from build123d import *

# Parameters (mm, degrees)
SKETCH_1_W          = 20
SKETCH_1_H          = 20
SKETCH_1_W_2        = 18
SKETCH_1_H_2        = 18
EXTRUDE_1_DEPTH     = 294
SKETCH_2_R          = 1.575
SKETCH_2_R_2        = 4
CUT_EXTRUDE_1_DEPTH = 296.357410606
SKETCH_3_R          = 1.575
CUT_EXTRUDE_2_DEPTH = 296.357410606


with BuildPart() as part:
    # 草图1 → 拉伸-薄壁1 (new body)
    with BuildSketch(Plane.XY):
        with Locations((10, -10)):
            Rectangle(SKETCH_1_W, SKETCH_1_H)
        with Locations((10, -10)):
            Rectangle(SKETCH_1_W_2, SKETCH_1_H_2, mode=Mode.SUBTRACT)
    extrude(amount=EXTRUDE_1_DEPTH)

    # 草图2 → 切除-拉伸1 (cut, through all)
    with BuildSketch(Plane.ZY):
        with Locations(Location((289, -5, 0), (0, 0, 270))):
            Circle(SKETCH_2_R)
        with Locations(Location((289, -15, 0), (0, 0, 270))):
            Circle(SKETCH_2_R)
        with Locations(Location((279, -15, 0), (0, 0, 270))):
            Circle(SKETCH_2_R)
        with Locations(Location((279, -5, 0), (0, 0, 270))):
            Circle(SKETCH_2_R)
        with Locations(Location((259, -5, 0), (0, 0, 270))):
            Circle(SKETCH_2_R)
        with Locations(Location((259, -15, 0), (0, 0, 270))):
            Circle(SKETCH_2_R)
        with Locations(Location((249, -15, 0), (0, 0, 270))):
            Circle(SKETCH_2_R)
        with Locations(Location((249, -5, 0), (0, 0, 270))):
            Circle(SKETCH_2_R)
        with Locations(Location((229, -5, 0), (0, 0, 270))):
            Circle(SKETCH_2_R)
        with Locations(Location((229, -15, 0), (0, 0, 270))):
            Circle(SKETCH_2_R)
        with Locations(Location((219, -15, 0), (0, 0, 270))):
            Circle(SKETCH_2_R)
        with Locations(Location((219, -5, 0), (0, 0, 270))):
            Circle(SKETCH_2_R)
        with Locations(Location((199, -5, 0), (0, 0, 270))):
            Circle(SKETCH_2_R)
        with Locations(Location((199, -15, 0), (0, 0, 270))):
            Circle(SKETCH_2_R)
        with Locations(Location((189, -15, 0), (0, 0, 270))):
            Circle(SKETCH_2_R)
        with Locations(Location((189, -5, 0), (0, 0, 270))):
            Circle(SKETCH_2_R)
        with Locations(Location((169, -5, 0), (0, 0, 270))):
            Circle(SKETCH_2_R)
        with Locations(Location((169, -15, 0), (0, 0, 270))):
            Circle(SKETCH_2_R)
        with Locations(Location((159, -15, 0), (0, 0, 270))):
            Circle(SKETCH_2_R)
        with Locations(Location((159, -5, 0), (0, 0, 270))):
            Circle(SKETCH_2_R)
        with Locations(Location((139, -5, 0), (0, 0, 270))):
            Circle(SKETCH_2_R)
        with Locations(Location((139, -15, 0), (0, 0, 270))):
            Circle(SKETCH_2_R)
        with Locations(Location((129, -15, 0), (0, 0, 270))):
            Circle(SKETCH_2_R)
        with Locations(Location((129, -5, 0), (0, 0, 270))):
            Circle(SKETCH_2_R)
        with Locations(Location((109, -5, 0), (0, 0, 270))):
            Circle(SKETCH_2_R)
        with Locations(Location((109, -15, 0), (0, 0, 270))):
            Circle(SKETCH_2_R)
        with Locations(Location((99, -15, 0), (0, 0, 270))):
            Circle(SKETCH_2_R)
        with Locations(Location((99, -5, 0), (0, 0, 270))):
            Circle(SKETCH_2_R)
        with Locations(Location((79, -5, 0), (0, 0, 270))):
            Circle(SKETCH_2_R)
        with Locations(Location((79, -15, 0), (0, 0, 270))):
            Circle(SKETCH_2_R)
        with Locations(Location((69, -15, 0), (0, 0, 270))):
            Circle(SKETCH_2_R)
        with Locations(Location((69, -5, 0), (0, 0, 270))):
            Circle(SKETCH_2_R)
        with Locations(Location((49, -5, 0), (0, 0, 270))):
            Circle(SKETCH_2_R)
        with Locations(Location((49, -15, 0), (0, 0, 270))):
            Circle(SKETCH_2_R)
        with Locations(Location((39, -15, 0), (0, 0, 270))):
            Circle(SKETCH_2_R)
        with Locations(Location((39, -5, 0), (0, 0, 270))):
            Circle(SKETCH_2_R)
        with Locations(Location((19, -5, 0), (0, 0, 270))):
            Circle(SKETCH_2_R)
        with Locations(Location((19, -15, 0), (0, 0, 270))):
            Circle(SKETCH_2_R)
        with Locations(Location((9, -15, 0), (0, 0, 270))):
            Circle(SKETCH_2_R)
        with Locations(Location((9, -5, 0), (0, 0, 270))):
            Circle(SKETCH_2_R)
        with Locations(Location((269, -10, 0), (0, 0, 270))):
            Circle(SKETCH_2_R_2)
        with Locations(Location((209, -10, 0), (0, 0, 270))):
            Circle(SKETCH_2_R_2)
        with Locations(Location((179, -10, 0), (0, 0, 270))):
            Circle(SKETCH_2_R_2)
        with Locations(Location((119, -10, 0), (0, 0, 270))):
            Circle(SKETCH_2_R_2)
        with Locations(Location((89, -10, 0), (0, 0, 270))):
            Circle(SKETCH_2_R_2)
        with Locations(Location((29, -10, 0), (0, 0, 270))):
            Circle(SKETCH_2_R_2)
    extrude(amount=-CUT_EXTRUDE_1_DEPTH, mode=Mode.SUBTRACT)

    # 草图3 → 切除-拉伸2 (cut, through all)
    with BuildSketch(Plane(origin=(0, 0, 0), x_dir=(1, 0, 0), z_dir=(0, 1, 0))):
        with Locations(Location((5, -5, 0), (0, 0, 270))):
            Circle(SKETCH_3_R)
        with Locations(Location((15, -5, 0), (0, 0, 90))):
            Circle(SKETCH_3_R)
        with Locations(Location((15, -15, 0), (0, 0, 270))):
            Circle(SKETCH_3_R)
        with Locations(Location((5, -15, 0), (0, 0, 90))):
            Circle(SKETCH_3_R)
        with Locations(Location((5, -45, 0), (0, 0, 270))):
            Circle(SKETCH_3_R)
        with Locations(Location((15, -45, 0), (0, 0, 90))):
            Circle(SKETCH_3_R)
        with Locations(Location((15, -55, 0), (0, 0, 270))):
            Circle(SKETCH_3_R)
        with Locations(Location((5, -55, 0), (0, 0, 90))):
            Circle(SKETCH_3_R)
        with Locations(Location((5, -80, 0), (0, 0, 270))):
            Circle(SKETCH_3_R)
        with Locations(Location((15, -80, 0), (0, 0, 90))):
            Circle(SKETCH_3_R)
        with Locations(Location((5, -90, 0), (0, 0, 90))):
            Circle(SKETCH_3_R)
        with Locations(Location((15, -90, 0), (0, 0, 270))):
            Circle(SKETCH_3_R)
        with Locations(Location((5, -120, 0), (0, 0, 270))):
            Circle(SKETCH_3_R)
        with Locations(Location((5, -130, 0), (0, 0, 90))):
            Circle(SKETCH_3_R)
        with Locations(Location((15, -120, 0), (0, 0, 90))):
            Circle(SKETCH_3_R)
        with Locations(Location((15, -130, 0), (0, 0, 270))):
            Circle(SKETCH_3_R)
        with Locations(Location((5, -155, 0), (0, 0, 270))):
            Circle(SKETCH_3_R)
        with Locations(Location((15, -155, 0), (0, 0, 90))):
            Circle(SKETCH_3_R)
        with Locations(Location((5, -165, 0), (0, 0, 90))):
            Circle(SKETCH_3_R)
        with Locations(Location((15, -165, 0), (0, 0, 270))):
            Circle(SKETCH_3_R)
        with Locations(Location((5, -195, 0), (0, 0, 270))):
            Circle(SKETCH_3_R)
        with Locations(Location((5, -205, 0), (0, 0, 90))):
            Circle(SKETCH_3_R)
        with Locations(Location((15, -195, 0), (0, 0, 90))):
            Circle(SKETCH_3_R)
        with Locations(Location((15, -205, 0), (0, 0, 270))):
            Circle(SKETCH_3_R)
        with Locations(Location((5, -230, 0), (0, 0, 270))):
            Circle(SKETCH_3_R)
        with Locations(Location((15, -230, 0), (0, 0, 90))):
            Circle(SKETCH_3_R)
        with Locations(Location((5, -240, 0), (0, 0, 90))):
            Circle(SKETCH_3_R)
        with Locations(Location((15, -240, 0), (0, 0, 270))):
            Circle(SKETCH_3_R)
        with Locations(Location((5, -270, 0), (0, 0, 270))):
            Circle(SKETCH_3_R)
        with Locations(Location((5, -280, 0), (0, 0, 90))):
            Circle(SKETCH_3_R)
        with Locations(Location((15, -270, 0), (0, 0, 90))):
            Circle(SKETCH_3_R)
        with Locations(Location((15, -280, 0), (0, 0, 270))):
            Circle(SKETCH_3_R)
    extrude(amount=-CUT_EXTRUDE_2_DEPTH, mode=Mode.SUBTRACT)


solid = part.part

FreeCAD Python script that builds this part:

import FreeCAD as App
import Part
import Sketcher

doc = App.newDocument("Part")
params = doc.addObject("Spreadsheet::Sheet", "Params")
for row, (alias, value) in enumerate([
    ("sketch1_width", "20 mm"),
    ("sketch1_width2", "18 mm"),
    ("pad1_length", "294 mm"),
    ("sketch2_diameter", "8 mm"),
    ("sketch2_diameter2", "3.15 mm"),
    ("sketch3_diameter", "3.15 mm"),
], start=1):
    params.set(f"A{row}", alias)
    params.set(f"B{row}", "=" + value)
    params.setAlias(f"B{row}", alias)

body = doc.addObject("PartDesign::Body", "Body")

# Sketch on XY plane
sketch1 = body.newObject("Sketcher::SketchObject", "Sketch")
sketch1.AttachmentSupport = (doc.getObject("XY_Plane"), [""])
sketch1.MapMode = "FlatFace"
sketch1.addGeometry([
    Part.LineSegment(App.Vector(0, 0, 0), App.Vector(0, -20, 0)),  # 0
    Part.LineSegment(App.Vector(0, -20, 0), App.Vector(20, -20, 0)),  # 1
    Part.LineSegment(App.Vector(20, -20, 0), App.Vector(20, 0, 0)),  # 2
    Part.LineSegment(App.Vector(20, 0, 0), App.Vector(0, 0, 0)),  # 3
    Part.LineSegment(App.Vector(19, -19, 0), App.Vector(1, -19, 0)),  # 4
    Part.LineSegment(App.Vector(1, -19, 0), App.Vector(1, -1, 0)),  # 5
    Part.LineSegment(App.Vector(1, -1, 0), App.Vector(19, -1, 0)),  # 6
    Part.LineSegment(App.Vector(19, -1, 0), App.Vector(19, -19, 0)),  # 7
], False)
sketch1.addConstraint([
    Sketcher.Constraint("Coincident", 0, 2, 1, 1),
    Sketcher.Constraint("Coincident", 1, 2, 2, 1),
    Sketcher.Constraint("Coincident", 2, 2, 3, 1),
    Sketcher.Constraint("Coincident", 3, 2, 0, 1),
    Sketcher.Constraint("Coincident", 4, 2, 5, 1),
    Sketcher.Constraint("Coincident", 5, 2, 6, 1),
    Sketcher.Constraint("Coincident", 6, 2, 7, 1),
    Sketcher.Constraint("Coincident", 7, 2, 4, 1),
    Sketcher.Constraint("Vertical", 0),
    Sketcher.Constraint("Horizontal", 1),
    Sketcher.Constraint("Vertical", 2),
    Sketcher.Constraint("Horizontal", 3),
    Sketcher.Constraint("Horizontal", 4),
    Sketcher.Constraint("Vertical", 5),
    Sketcher.Constraint("Horizontal", 6),
    Sketcher.Constraint("Vertical", 7),
    Sketcher.Constraint("Coincident", 3, 2, -1, 1),
    Sketcher.Constraint("Equal", 3, 0),
    Sketcher.Constraint("Equal", 6, 5),
    Sketcher.Constraint("DistanceX", 1, 1, 1, 2, 20.0),
    Sketcher.Constraint("DistanceX", 4, 2, 4, 1, 18.0),
    Sketcher.Constraint("DistanceX", -1, 1, 4, 2, 1.0),
    Sketcher.Constraint("DistanceY", 4, 2, -1, 1, 19.0),
])
sketch1.setExpression("Constraints[19]", "Params.sketch1_width")
sketch1.setExpression("Constraints[20]", "Params.sketch1_width2")
pad1 = body.newObject("PartDesign::Pad", "Pad")
pad1.Profile = sketch1
pad1.setExpression("Length", "Params.pad1_length")

# Sketch on YZ plane
sketch2 = body.newObject("Sketcher::SketchObject", "Sketch001")
sketch2.AttachmentSupport = (doc.getObject("YZ_Plane"), [""])
sketch2.MapMode = "FlatFace"
sketch2.addGeometry([
    Part.Circle(App.Vector(-5, 289, 0), App.Vector(0, 0, 1), 1.6),  # 0
    Part.Circle(App.Vector(-15, 289, 0), App.Vector(0, 0, 1), 1.6),  # 1
    Part.Circle(App.Vector(-15, 279, 0), App.Vector(0, 0, 1), 1.6),  # 2
    Part.Circle(App.Vector(-5, 279, 0), App.Vector(0, 0, 1), 1.6),  # 3
    Part.Circle(App.Vector(-5, 259, 0), App.Vector(0, 0, 1), 1.6),  # 4
    Part.Circle(App.Vector(-15, 259, 0), App.Vector(0, 0, 1), 1.6),  # 5
    Part.Circle(App.Vector(-15, 249, 0), App.Vector(0, 0, 1), 1.6),  # 6
    Part.Circle(App.Vector(-5, 249, 0), App.Vector(0, 0, 1), 1.6),  # 7
    Part.Circle(App.Vector(-5, 229, 0), App.Vector(0, 0, 1), 1.6),  # 8
    Part.Circle(App.Vector(-15, 229, 0), App.Vector(0, 0, 1), 1.6),  # 9
    Part.Circle(App.Vector(-15, 219, 0), App.Vector(0, 0, 1), 1.6),  # 10
    Part.Circle(App.Vector(-5, 219, 0), App.Vector(0, 0, 1), 1.6),  # 11
    Part.Circle(App.Vector(-5, 199, 0), App.Vector(0, 0, 1), 1.6),  # 12
    Part.Circle(App.Vector(-15, 199, 0), App.Vector(0, 0, 1), 1.6),  # 13
    Part.Circle(App.Vector(-15, 189, 0), App.Vector(0, 0, 1), 1.6),  # 14
    Part.Circle(App.Vector(-5, 189, 0), App.Vector(0, 0, 1), 1.6),  # 15
    Part.Circle(App.Vector(-5, 169, 0), App.Vector(0, 0, 1), 1.6),  # 16
    Part.Circle(App.Vector(-15, 169, 0), App.Vector(0, 0, 1), 1.6),  # 17
    Part.Circle(App.Vector(-15, 159, 0), App.Vector(0, 0, 1), 1.6),  # 18
    Part.Circle(App.Vector(-5, 159, 0), App.Vector(0, 0, 1), 1.6),  # 19
    Part.Circle(App.Vector(-5, 139, 0), App.Vector(0, 0, 1), 1.6),  # 20
    Part.Circle(App.Vector(-15, 139, 0), App.Vector(0, 0, 1), 1.6),  # 21
    Part.Circle(App.Vector(-15, 129, 0), App.Vector(0, 0, 1), 1.6),  # 22
    Part.Circle(App.Vector(-5, 129, 0), App.Vector(0, 0, 1), 1.6),  # 23
    Part.Circle(App.Vector(-5, 109, 0), App.Vector(0, 0, 1), 1.6),  # 24
    Part.Circle(App.Vector(-15, 109, 0), App.Vector(0, 0, 1), 1.6),  # 25
    Part.Circle(App.Vector(-15, 99, 0), App.Vector(0, 0, 1), 1.6),  # 26
    Part.Circle(App.Vector(-5, 99, 0), App.Vector(0, 0, 1), 1.6),  # 27
    Part.Circle(App.Vector(-5, 79, 0), App.Vector(0, 0, 1), 1.6),  # 28
    Part.Circle(App.Vector(-15, 79, 0), App.Vector(0, 0, 1), 1.6),  # 29
    Part.Circle(App.Vector(-15, 69, 0), App.Vector(0, 0, 1), 1.6),  # 30
    Part.Circle(App.Vector(-5, 69, 0), App.Vector(0, 0, 1), 1.6),  # 31
    Part.Circle(App.Vector(-5, 49, 0), App.Vector(0, 0, 1), 1.6),  # 32
    Part.Circle(App.Vector(-15, 49, 0), App.Vector(0, 0, 1), 1.6),  # 33
    Part.Circle(App.Vector(-15, 39, 0), App.Vector(0, 0, 1), 1.6),  # 34
    Part.Circle(App.Vector(-5, 39, 0), App.Vector(0, 0, 1), 1.6),  # 35
    Part.Circle(App.Vector(-5, 19, 0), App.Vector(0, 0, 1), 1.6),  # 36
    Part.Circle(App.Vector(-15, 19, 0), App.Vector(0, 0, 1), 1.6),  # 37
    Part.Circle(App.Vector(-15, 9, 0), App.Vector(0, 0, 1), 1.6),  # 38
    Part.Circle(App.Vector(-5, 9, 0), App.Vector(0, 0, 1), 1.6),  # 39
    Part.Circle(App.Vector(-10, 269, 0), App.Vector(0, 0, 1), 4),  # 40
    Part.Circle(App.Vector(-10, 209, 0), App.Vector(0, 0, 1), 4),  # 41
    Part.Circle(App.Vector(-10, 179, 0), App.Vector(0, 0, 1), 4),  # 42
    Part.Circle(App.Vector(-10, 119, 0), App.Vector(0, 0, 1), 4),  # 43
    Part.Circle(App.Vector(-10, 89, 0), App.Vector(0, 0, 1), 4),  # 44
    Part.Circle(App.Vector(-10, 29, 0), App.Vector(0, 0, 1), 4),  # 45
], False)
sketch2.addConstraint([
    Sketcher.Constraint("Equal", 0, 1),
    Sketcher.Constraint("Equal", 1, 2),
    Sketcher.Constraint("Equal", 2, 3),
    Sketcher.Constraint("Equal", 3, 4),
    Sketcher.Constraint("Equal", 4, 5),
    Sketcher.Constraint("Equal", 5, 6),
    Sketcher.Constraint("Equal", 6, 7),
    Sketcher.Constraint("Equal", 7, 8),
    Sketcher.Constraint("Equal", 8, 9),
    Sketcher.Constraint("Equal", 9, 10),
    Sketcher.Constraint("Equal", 10, 11),
    Sketcher.Constraint("Equal", 11, 12),
    Sketcher.Constraint("Equal", 12, 13),
    Sketcher.Constraint("Equal", 13, 14),
    Sketcher.Constraint("Equal", 14, 15),
    Sketcher.Constraint("Equal", 15, 16),
    Sketcher.Constraint("Equal", 16, 17),
    Sketcher.Constraint("Equal", 17, 18),
    Sketcher.Constraint("Equal", 18, 19),
    Sketcher.Constraint("Equal", 19, 20),
    Sketcher.Constraint("Equal", 20, 21),
    Sketcher.Constraint("Equal", 21, 22),
    Sketcher.Constraint("Equal", 22, 23),
    Sketcher.Constraint("Equal", 23, 24),
    Sketcher.Constraint("Equal", 24, 25),
    Sketcher.Constraint("Equal", 25, 26),
    Sketcher.Constraint("Equal", 26, 27),
    Sketcher.Constraint("Equal", 27, 28),
    Sketcher.Constraint("Equal", 28, 29),
    Sketcher.Constraint("Equal", 29, 30),
    Sketcher.Constraint("Equal", 30, 31),
    Sketcher.Constraint("Equal", 31, 32),
    Sketcher.Constraint("Equal", 32, 33),
    Sketcher.Constraint("Equal", 33, 34),
    Sketcher.Constraint("Equal", 34, 35),
    Sketcher.Constraint("Equal", 35, 36),
    Sketcher.Constraint("Equal", 36, 37),
    Sketcher.Constraint("Equal", 37, 38),
    Sketcher.Constraint("Equal", 38, 39),
    Sketcher.Constraint("Equal", 40, 41),
    Sketcher.Constraint("Equal", 41, 42),
    Sketcher.Constraint("Equal", 42, 43),
    Sketcher.Constraint("Equal", 43, 44),
    Sketcher.Constraint("Equal", 44, 45),
    Sketcher.Constraint("Horizontal", 0, 3, 1, 3),
    Sketcher.Constraint("Horizontal", 2, 3, 3, 3),
    Sketcher.Constraint("Horizontal", 4, 3, 5, 3),
    Sketcher.Constraint("Horizontal", 6, 3, 7, 3),
    Sketcher.Constraint("Horizontal", 8, 3, 9, 3),
    Sketcher.Constraint("Horizontal", 10, 3, 11, 3),
    Sketcher.Constraint("Horizontal", 12, 3, 13, 3),
    Sketcher.Constraint("Horizontal", 14, 3, 15, 3),
    Sketcher.Constraint("Horizontal", 16, 3, 17, 3),
    Sketcher.Constraint("Horizontal", 18, 3, 19, 3),
    Sketcher.Constraint("Horizontal", 20, 3, 21, 3),
    Sketcher.Constraint("Horizontal", 22, 3, 23, 3),
    Sketcher.Constraint("Horizontal", 24, 3, 25, 3),
    Sketcher.Constraint("Horizontal", 26, 3, 27, 3),
    Sketcher.Constraint("Horizontal", 28, 3, 29, 3),
    Sketcher.Constraint("Horizontal", 30, 3, 31, 3),
    Sketcher.Constraint("Horizontal", 32, 3, 33, 3),
    Sketcher.Constraint("Horizontal", 34, 3, 35, 3),
    Sketcher.Constraint("Horizontal", 36, 3, 37, 3),
    Sketcher.Constraint("Horizontal", 38, 3, 39, 3),
    Sketcher.Constraint("Vertical", 1, 3, 2, 3),
    Sketcher.Constraint("Vertical", 0, 3, 3, 3),
    Sketcher.Constraint("Vertical", 3, 3, 4, 3),
    Sketcher.Constraint("Vertical", 2, 3, 5, 3),
    Sketcher.Constraint("Vertical", 5, 3, 6, 3),
    Sketcher.Constraint("Vertical", 4, 3, 7, 3),
    Sketcher.Constraint("Vertical", 7, 3, 8, 3),
    Sketcher.Constraint("Vertical", 6, 3, 9, 3),
    Sketcher.Constraint("Vertical", 9, 3, 10, 3),
    Sketcher.Constraint("Vertical", 8, 3, 11, 3),
    Sketcher.Constraint("Vertical", 11, 3, 12, 3),
    Sketcher.Constraint("Vertical", 10, 3, 13, 3),
    Sketcher.Constraint("Vertical", 13, 3, 14, 3),
    Sketcher.Constraint("Vertical", 12, 3, 15, 3),
    Sketcher.Constraint("Vertical", 15, 3, 16, 3),
    Sketcher.Constraint("Vertical", 14, 3, 17, 3),
    Sketcher.Constraint("Vertical", 17, 3, 18, 3),
    Sketcher.Constraint("Vertical", 16, 3, 19, 3),
    Sketcher.Constraint("Vertical", 19, 3, 20, 3),
    Sketcher.Constraint("Vertical", 18, 3, 21, 3),
    Sketcher.Constraint("Vertical", 21, 3, 22, 3),
    Sketcher.Constraint("Vertical", 20, 3, 23, 3),
    Sketcher.Constraint("Vertical", 23, 3, 24, 3),
    Sketcher.Constraint("Vertical", 22, 3, 25, 3),
    Sketcher.Constraint("Vertical", 25, 3, 26, 3),
    Sketcher.Constraint("Vertical", 24, 3, 27, 3),
    Sketcher.Constraint("Vertical", 27, 3, 28, 3),
    Sketcher.Constraint("Vertical", 26, 3, 29, 3),
    Sketcher.Constraint("Vertical", 29, 3, 30, 3),
    Sketcher.Constraint("Vertical", 28, 3, 31, 3),
    Sketcher.Constraint("Vertical", 31, 3, 32, 3),
    Sketcher.Constraint("Vertical", 30, 3, 33, 3),
    Sketcher.Constraint("Vertical", 33, 3, 34, 3),
    Sketcher.Constraint("Vertical", 32, 3, 35, 3),
    Sketcher.Constraint("Vertical", 35, 3, 36, 3),
    Sketcher.Constraint("Vertical", 34, 3, 37, 3),
    Sketcher.Constraint("Vertical", 37, 3, 38, 3),
    Sketcher.Constraint("Vertical", 36, 3, 39, 3),
    Sketcher.Constraint("Vertical", 40, 3, 41, 3),
    Sketcher.Constraint("Vertical", 41, 3, 42, 3),
    Sketcher.Constraint("Vertical", 42, 3, 43, 3),
    Sketcher.Constraint("Vertical", 43, 3, 44, 3),
    Sketcher.Constraint("Vertical", 44, 3, 45, 3),
    Sketcher.Constraint("Diameter", 40, 8.0),
    Sketcher.Constraint("Diameter", 0, 3.15),
    Sketcher.Constraint("DistanceX", 0, 3, -1, 1, 5.0),
    Sketcher.Constraint("DistanceY", -1, 1, 0, 3, 289.0),
    Sketcher.Constraint("DistanceX", 1, 3, -1, 1, 15.0),
    Sketcher.Constraint("DistanceY", -1, 1, 2, 3, 279.0),
    Sketcher.Constraint("DistanceY", -1, 1, 4, 3, 259.0),
    Sketcher.Constraint("DistanceY", -1, 1, 6, 3, 249.0),
    Sketcher.Constraint("DistanceY", -1, 1, 8, 3, 229.0),
    Sketcher.Constraint("DistanceY", -1, 1, 10, 3, 219.0),
    Sketcher.Constraint("DistanceY", -1, 1, 12, 3, 199.0),
    Sketcher.Constraint("DistanceY", -1, 1, 14, 3, 189.0),
    Sketcher.Constraint("DistanceY", -1, 1, 16, 3, 169.0),
    Sketcher.Constraint("DistanceY", -1, 1, 18, 3, 159.0),
    Sketcher.Constraint("DistanceY", -1, 1, 20, 3, 139.0),
    Sketcher.Constraint("DistanceY", -1, 1, 22, 3, 129.0),
    Sketcher.Constraint("DistanceY", -1, 1, 24, 3, 109.0),
    Sketcher.Constraint("DistanceY", -1, 1, 26, 3, 99.0),
    Sketcher.Constraint("DistanceY", -1, 1, 28, 3, 79.0),
    Sketcher.Constraint("DistanceY", -1, 1, 30, 3, 69.0),
    Sketcher.Constraint("DistanceY", -1, 1, 32, 3, 49.0),
    Sketcher.Constraint("DistanceY", -1, 1, 34, 3, 39.0),
    Sketcher.Constraint("DistanceY", -1, 1, 36, 3, 19.0),
    Sketcher.Constraint("DistanceY", -1, 1, 38, 3, 9.0),
    Sketcher.Constraint("DistanceX", 40, 3, -1, 1, 10.0),
    Sketcher.Constraint("DistanceY", -1, 1, 40, 3, 269.0),
    Sketcher.Constraint("DistanceY", -1, 1, 41, 3, 209.0),
    Sketcher.Constraint("DistanceY", -1, 1, 42, 3, 179.0),
    Sketcher.Constraint("DistanceY", -1, 1, 43, 3, 119.0),
    Sketcher.Constraint("DistanceY", -1, 1, 44, 3, 89.0),
    Sketcher.Constraint("DistanceY", -1, 1, 45, 3, 29.0),
])
sketch2.setExpression("Constraints[107]", "Params.sketch2_diameter")
sketch2.setExpression("Constraints[108]", "Params.sketch2_diameter2")
pocket1 = body.newObject("PartDesign::Pocket", "Pocket")
pocket1.Profile = sketch2
pocket1.Type = "ThroughAll"
pocket1.Reversed = True

# Sketch on XZ plane
sketch3 = body.newObject("Sketcher::SketchObject", "Sketch002")
sketch3.AttachmentSupport = (doc.getObject("XZ_Plane"), [""])
sketch3.MapMode = "FlatFace"
sketch3.addGeometry([
    Part.Circle(App.Vector(5, 5, 0), App.Vector(0, 0, 1), 1.6),  # 0
    Part.Circle(App.Vector(15, 5, 0), App.Vector(0, 0, 1), 1.6),  # 1
    Part.Circle(App.Vector(15, 15, 0), App.Vector(0, 0, 1), 1.6),  # 2
    Part.Circle(App.Vector(5, 15, 0), App.Vector(0, 0, 1), 1.6),  # 3
    Part.Circle(App.Vector(5, 45, 0), App.Vector(0, 0, 1), 1.6),  # 4
    Part.Circle(App.Vector(15, 45, 0), App.Vector(0, 0, 1), 1.6),  # 5
    Part.Circle(App.Vector(15, 55, 0), App.Vector(0, 0, 1), 1.6),  # 6
    Part.Circle(App.Vector(5, 55, 0), App.Vector(0, 0, 1), 1.6),  # 7
    Part.Circle(App.Vector(5, 80, 0), App.Vector(0, 0, 1), 1.6),  # 8
    Part.Circle(App.Vector(15, 80, 0), App.Vector(0, 0, 1), 1.6),  # 9
    Part.Circle(App.Vector(5, 90, 0), App.Vector(0, 0, 1), 1.6),  # 10
    Part.Circle(App.Vector(15, 90, 0), App.Vector(0, 0, 1), 1.6),  # 11
    Part.Circle(App.Vector(5, 120, 0), App.Vector(0, 0, 1), 1.6),  # 12
    Part.Circle(App.Vector(5, 130, 0), App.Vector(0, 0, 1), 1.6),  # 13
    Part.Circle(App.Vector(15, 120, 0), App.Vector(0, 0, 1), 1.6),  # 14
    Part.Circle(App.Vector(15, 130, 0), App.Vector(0, 0, 1), 1.6),  # 15
    Part.Circle(App.Vector(5, 155, 0), App.Vector(0, 0, 1), 1.6),  # 16
    Part.Circle(App.Vector(15, 155, 0), App.Vector(0, 0, 1), 1.6),  # 17
    Part.Circle(App.Vector(5, 165, 0), App.Vector(0, 0, 1), 1.6),  # 18
    Part.Circle(App.Vector(15, 165, 0), App.Vector(0, 0, 1), 1.6),  # 19
    Part.Circle(App.Vector(5, 195, 0), App.Vector(0, 0, 1), 1.6),  # 20
    Part.Circle(App.Vector(5, 205, 0), App.Vector(0, 0, 1), 1.6),  # 21
    Part.Circle(App.Vector(15, 195, 0), App.Vector(0, 0, 1), 1.6),  # 22
    Part.Circle(App.Vector(15, 205, 0), App.Vector(0, 0, 1), 1.6),  # 23
    Part.Circle(App.Vector(5, 230, 0), App.Vector(0, 0, 1), 1.6),  # 24
    Part.Circle(App.Vector(15, 230, 0), App.Vector(0, 0, 1), 1.6),  # 25
    Part.Circle(App.Vector(5, 240, 0), App.Vector(0, 0, 1), 1.6),  # 26
    Part.Circle(App.Vector(15, 240, 0), App.Vector(0, 0, 1), 1.6),  # 27
    Part.Circle(App.Vector(5, 270, 0), App.Vector(0, 0, 1), 1.6),  # 28
    Part.Circle(App.Vector(5, 280, 0), App.Vector(0, 0, 1), 1.6),  # 29
    Part.Circle(App.Vector(15, 270, 0), App.Vector(0, 0, 1), 1.6),  # 30
    Part.Circle(App.Vector(15, 280, 0), App.Vector(0, 0, 1), 1.6),  # 31
], False)
sketch3.addConstraint([
    Sketcher.Constraint("Equal", 0, 1),
    Sketcher.Constraint("Equal", 1, 2),
    Sketcher.Constraint("Equal", 2, 3),
    Sketcher.Constraint("Equal", 3, 4),
    Sketcher.Constraint("Equal", 4, 5),
    Sketcher.Constraint("Equal", 5, 6),
    Sketcher.Constraint("Equal", 6, 7),
    Sketcher.Constraint("Equal", 7, 8),
    Sketcher.Constraint("Equal", 8, 9),
    Sketcher.Constraint("Equal", 9, 10),
    Sketcher.Constraint("Equal", 10, 11),
    Sketcher.Constraint("Equal", 11, 12),
    Sketcher.Constraint("Equal", 12, 13),
    Sketcher.Constraint("Equal", 13, 14),
    Sketcher.Constraint("Equal", 14, 15),
    Sketcher.Constraint("Equal", 15, 16),
    Sketcher.Constraint("Equal", 16, 17),
    Sketcher.Constraint("Equal", 17, 18),
    Sketcher.Constraint("Equal", 18, 19),
    Sketcher.Constraint("Equal", 19, 20),
    Sketcher.Constraint("Equal", 20, 21),
    Sketcher.Constraint("Equal", 21, 22),
    Sketcher.Constraint("Equal", 22, 23),
    Sketcher.Constraint("Equal", 23, 24),
    Sketcher.Constraint("Equal", 24, 25),
    Sketcher.Constraint("Equal", 25, 26),
    Sketcher.Constraint("Equal", 26, 27),
    Sketcher.Constraint("Equal", 27, 28),
    Sketcher.Constraint("Equal", 28, 29),
    Sketcher.Constraint("Equal", 29, 30),
    Sketcher.Constraint("Equal", 30, 31),
    Sketcher.Constraint("Horizontal", 0, 3, 1, 3),
    Sketcher.Constraint("Horizontal", 2, 3, 3, 3),
    Sketcher.Constraint("Horizontal", 4, 3, 5, 3),
    Sketcher.Constraint("Horizontal", 6, 3, 7, 3),
    Sketcher.Constraint("Horizontal", 8, 3, 9, 3),
    Sketcher.Constraint("Horizontal", 10, 3, 11, 3),
    Sketcher.Constraint("Horizontal", 12, 3, 14, 3),
    Sketcher.Constraint("Horizontal", 13, 3, 15, 3),
    Sketcher.Constraint("Horizontal", 16, 3, 17, 3),
    Sketcher.Constraint("Horizontal", 18, 3, 19, 3),
    Sketcher.Constraint("Horizontal", 20, 3, 22, 3),
    Sketcher.Constraint("Horizontal", 21, 3, 23, 3),
    Sketcher.Constraint("Horizontal", 24, 3, 25, 3),
    Sketcher.Constraint("Horizontal", 26, 3, 27, 3),
    Sketcher.Constraint("Horizontal", 28, 3, 30, 3),
    Sketcher.Constraint("Horizontal", 29, 3, 31, 3),
    Sketcher.Constraint("Vertical", 1, 3, 2, 3),
    Sketcher.Constraint("Vertical", 0, 3, 3, 3),
    Sketcher.Constraint("Vertical", 3, 3, 4, 3),
    Sketcher.Constraint("Vertical", 2, 3, 5, 3),
    Sketcher.Constraint("Vertical", 5, 3, 6, 3),
    Sketcher.Constraint("Vertical", 4, 3, 7, 3),
    Sketcher.Constraint("Vertical", 7, 3, 8, 3),
    Sketcher.Constraint("Vertical", 6, 3, 9, 3),
    Sketcher.Constraint("Vertical", 8, 3, 10, 3),
    Sketcher.Constraint("Vertical", 9, 3, 11, 3),
    Sketcher.Constraint("Vertical", 10, 3, 12, 3),
    Sketcher.Constraint("Vertical", 12, 3, 13, 3),
    Sketcher.Constraint("Vertical", 11, 3, 14, 3),
    Sketcher.Constraint("Vertical", 14, 3, 15, 3),
    Sketcher.Constraint("Vertical", 13, 3, 16, 3),
    Sketcher.Constraint("Vertical", 15, 3, 17, 3),
    Sketcher.Constraint("Vertical", 16, 3, 18, 3),
    Sketcher.Constraint("Vertical", 17, 3, 19, 3),
    Sketcher.Constraint("Vertical", 18, 3, 20, 3),
    Sketcher.Constraint("Vertical", 20, 3, 21, 3),
    Sketcher.Constraint("Vertical", 19, 3, 22, 3),
    Sketcher.Constraint("Vertical", 22, 3, 23, 3),
    Sketcher.Constraint("Vertical", 21, 3, 24, 3),
    Sketcher.Constraint("Vertical", 23, 3, 25, 3),
    Sketcher.Constraint("Vertical", 24, 3, 26, 3),
    Sketcher.Constraint("Vertical", 25, 3, 27, 3),
    Sketcher.Constraint("Vertical", 26, 3, 28, 3),
    Sketcher.Constraint("Vertical", 28, 3, 29, 3),
    Sketcher.Constraint("Vertical", 27, 3, 30, 3),
    Sketcher.Constraint("Vertical", 30, 3, 31, 3),
    Sketcher.Constraint("Diameter", 0, 3.15),
    Sketcher.Constraint("DistanceX", -1, 1, 0, 3, 5.0),
    Sketcher.Constraint("DistanceY", -1, 1, 0, 3, 5.0),
    Sketcher.Constraint("DistanceX", -1, 1, 1, 3, 15.0),
    Sketcher.Constraint("DistanceY", -1, 1, 2, 3, 15.0),
    Sketcher.Constraint("DistanceY", -1, 1, 4, 3, 45.0),
    Sketcher.Constraint("DistanceY", -1, 1, 6, 3, 55.0),
    Sketcher.Constraint("DistanceY", -1, 1, 8, 3, 80.0),
    Sketcher.Constraint("DistanceY", -1, 1, 10, 3, 90.0),
    Sketcher.Constraint("DistanceY", -1, 1, 12, 3, 120.0),
    Sketcher.Constraint("DistanceY", -1, 1, 13, 3, 130.0),
    Sketcher.Constraint("DistanceY", -1, 1, 16, 3, 155.0),
    Sketcher.Constraint("DistanceY", -1, 1, 18, 3, 165.0),
    Sketcher.Constraint("DistanceY", -1, 1, 20, 3, 195.0),
    Sketcher.Constraint("DistanceY", -1, 1, 21, 3, 205.0),
    Sketcher.Constraint("DistanceY", -1, 1, 24, 3, 230.0),
    Sketcher.Constraint("DistanceY", -1, 1, 26, 3, 240.0),
    Sketcher.Constraint("DistanceY", -1, 1, 28, 3, 270.0),
    Sketcher.Constraint("DistanceY", -1, 1, 29, 3, 280.0),
])
sketch3.setExpression("Constraints[77]", "Params.sketch3_diameter")
pocket2 = body.newObject("PartDesign::Pocket", "Pocket001")
pocket2.Profile = sketch3
pocket2.Type = "ThroughAll"
pocket2.Reversed = True

doc.recompute()
